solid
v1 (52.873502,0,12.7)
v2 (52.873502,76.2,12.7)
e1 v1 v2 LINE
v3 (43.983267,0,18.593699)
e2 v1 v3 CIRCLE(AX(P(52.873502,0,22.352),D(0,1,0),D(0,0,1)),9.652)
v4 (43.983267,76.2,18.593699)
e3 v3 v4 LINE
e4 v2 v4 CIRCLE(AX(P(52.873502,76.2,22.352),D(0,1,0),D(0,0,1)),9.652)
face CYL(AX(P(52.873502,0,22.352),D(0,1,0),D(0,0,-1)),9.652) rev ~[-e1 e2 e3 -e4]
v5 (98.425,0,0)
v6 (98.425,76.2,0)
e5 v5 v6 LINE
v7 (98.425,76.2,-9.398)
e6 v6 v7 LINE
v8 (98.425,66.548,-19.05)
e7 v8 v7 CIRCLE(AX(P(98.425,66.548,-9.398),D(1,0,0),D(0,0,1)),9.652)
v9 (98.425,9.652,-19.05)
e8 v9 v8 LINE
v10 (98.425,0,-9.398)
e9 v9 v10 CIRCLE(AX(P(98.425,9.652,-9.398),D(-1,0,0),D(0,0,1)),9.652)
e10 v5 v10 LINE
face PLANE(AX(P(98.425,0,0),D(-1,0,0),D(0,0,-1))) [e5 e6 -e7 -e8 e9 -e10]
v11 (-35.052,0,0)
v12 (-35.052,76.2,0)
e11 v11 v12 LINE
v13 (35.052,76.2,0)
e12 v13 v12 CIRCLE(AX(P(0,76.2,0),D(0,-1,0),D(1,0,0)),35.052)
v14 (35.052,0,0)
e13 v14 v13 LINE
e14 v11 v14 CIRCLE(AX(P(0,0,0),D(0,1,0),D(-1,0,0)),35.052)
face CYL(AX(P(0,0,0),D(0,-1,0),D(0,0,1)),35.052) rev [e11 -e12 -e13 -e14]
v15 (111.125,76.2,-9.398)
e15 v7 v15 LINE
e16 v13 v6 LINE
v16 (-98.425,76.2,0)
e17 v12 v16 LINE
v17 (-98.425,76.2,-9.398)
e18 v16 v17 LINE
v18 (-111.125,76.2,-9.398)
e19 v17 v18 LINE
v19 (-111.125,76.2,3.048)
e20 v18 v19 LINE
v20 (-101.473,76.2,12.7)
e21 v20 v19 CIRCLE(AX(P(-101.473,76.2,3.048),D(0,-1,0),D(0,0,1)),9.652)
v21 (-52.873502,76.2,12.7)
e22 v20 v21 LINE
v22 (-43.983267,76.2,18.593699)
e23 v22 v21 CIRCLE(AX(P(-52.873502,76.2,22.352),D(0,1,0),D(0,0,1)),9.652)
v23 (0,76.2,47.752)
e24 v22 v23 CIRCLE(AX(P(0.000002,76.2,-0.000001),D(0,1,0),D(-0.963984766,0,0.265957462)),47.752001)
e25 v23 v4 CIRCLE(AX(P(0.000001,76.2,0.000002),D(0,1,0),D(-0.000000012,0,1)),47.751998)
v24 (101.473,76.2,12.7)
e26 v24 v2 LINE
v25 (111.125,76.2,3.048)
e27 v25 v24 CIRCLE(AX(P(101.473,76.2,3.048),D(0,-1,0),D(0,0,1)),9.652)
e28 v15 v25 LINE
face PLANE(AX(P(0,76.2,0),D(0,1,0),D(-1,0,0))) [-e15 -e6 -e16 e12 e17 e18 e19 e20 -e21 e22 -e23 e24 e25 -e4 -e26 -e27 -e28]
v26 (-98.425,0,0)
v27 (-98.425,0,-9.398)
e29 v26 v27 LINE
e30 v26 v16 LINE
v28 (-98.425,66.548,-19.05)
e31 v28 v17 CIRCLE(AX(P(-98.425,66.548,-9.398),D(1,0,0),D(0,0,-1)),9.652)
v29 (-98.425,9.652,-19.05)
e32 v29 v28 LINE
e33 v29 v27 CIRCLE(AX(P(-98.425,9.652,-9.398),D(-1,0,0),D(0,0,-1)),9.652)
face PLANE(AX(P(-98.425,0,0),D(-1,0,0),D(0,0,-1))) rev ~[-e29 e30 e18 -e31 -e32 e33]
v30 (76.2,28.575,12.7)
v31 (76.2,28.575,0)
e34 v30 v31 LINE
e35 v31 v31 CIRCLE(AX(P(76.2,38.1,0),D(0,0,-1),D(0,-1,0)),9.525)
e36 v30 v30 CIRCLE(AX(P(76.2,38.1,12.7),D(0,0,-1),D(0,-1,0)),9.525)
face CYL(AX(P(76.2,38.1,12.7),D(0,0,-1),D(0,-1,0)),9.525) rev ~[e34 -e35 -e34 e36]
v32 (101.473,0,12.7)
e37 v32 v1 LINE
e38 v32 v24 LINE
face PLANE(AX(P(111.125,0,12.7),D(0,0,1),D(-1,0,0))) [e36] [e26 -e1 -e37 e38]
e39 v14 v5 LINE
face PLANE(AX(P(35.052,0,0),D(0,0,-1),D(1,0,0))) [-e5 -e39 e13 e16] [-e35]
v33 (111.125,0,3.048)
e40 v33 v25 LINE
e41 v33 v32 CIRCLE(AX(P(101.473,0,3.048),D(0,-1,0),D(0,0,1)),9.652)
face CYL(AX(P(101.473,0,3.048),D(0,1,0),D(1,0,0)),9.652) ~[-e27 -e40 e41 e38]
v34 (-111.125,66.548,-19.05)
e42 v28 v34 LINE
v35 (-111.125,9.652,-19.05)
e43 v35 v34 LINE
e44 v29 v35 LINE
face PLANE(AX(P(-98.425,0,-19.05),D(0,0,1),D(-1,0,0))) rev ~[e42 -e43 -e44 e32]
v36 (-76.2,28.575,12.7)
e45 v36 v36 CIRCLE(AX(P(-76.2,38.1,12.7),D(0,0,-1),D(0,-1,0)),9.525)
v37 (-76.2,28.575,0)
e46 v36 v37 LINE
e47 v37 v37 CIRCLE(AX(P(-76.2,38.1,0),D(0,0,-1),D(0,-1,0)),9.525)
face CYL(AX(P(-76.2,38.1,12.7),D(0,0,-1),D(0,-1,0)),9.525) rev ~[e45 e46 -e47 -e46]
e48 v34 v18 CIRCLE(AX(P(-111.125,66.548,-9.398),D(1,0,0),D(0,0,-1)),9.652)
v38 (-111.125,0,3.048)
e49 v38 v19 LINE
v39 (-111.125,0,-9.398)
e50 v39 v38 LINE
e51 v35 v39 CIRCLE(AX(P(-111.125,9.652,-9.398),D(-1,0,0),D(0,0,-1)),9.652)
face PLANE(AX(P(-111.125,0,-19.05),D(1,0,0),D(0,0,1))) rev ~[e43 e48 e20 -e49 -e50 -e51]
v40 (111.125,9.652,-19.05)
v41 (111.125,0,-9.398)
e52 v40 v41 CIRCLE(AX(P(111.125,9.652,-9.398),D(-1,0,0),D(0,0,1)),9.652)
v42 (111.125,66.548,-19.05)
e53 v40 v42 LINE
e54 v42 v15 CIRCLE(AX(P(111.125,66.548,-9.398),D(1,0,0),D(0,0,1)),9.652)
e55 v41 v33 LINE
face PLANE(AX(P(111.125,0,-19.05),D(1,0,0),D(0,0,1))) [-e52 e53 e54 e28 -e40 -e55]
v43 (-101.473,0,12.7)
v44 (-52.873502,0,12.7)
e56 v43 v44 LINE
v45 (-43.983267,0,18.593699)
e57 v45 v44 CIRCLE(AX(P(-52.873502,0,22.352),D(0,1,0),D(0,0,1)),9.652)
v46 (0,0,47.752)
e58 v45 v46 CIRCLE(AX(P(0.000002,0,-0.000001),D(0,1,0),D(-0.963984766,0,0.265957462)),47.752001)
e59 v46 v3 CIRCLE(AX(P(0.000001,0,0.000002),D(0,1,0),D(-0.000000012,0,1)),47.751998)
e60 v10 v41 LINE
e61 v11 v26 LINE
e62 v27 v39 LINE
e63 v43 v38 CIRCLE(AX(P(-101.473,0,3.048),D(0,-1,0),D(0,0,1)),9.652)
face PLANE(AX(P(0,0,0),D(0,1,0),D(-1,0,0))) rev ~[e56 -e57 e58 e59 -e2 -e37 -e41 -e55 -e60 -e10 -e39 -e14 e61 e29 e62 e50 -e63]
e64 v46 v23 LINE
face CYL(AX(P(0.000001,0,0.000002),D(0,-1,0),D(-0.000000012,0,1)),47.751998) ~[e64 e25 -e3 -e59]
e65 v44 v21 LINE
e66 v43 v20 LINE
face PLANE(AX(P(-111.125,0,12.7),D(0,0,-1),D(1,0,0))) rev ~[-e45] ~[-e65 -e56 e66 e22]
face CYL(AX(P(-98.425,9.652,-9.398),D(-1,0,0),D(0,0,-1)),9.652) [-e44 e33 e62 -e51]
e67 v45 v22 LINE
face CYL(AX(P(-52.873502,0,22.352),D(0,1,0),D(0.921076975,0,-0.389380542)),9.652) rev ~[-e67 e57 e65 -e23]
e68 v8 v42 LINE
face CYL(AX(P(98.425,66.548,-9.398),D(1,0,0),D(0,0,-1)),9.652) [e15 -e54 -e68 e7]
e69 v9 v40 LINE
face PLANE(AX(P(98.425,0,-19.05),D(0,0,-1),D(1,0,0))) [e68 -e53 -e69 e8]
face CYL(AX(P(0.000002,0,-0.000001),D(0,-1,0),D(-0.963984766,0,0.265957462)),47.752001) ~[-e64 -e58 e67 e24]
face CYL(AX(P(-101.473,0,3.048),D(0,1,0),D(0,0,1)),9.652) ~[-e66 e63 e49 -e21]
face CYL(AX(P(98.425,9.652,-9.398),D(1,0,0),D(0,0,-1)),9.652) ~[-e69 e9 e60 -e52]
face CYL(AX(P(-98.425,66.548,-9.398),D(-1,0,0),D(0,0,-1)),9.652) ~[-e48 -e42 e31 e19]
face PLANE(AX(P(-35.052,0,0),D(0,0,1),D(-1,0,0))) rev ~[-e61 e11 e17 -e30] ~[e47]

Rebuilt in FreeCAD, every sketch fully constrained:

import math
import FreeCAD as App
import Part
import Sketcher

V = App.Vector
Q = App.Units.Quantity


def edges_at(feature, points):
    """Names of the edges that pass closest to the given points."""
    edges = feature.Shape.Edges
    near = lambda p: min(range(len(edges)), key=lambda i: edges[i].distToShape(Part.Vertex(*p))[0])
    return sorted({f"Edge{near(p) + 1}" for p in points})

doc = App.newDocument("Part")
body = doc.addObject("PartDesign::Body", "Body")

# Sketch on XZ plane
sketch1 = body.newObject("Sketcher::SketchObject", "Sketch")
sketch1.AttachmentSupport = (doc.getObject("XZ_Plane"), [""])
sketch1.MapMode = "FlatFace"
sketch1.addGeometry(Part.LineSegment(V(-35.052, 0, 0), V(-98.425, 0, 0)), False)
sketch1.addGeometry(Part.LineSegment(V(-98.425, 0, 0), V(-98.425, -19.05, 0)), False)
sketch1.addGeometry(Part.LineSegment(V(-98.425, -19.05, 0), V(-111.125, -19.05, 0)), False)
sketch1.addGeometry(Part.LineSegment(V(-111.125, -19.05, 0), V(-111.125, 12.7, 0)), False)
sketch1.addGeometry(Part.LineSegment(V(-111.125, 12.7, 0), V(-46.0322, 12.7, 0)), False)
sketch1.addGeometry(Part.ArcOfCircle(Part.Circle(V(0, 0, 0), V(0, 0, 1), 47.752), math.radians(90), math.radians(164.576148)), False)
sketch1.addGeometry(Part.ArcOfCircle(Part.Circle(V(0, 0, 0), V(0, 0, 1), 47.751999), math.radians(15.423852), math.radians(90)), False)
sketch1.addGeometry(Part.LineSegment(V(46.0322, 12.7, 0), V(111.125, 12.7, 0)), False)
sketch1.addGeometry(Part.LineSegment(V(111.125, 12.7, 0), V(111.125, -19.05, 0)), False)
sketch1.addGeometry(Part.LineSegment(V(111.125, -19.05, 0), V(98.425, -19.05, 0)), False)
sketch1.addGeometry(Part.LineSegment(V(98.425, -19.05, 0), V(98.425, 0, 0)), False)
sketch1.addGeometry(Part.LineSegment(V(98.425, 0, 0), V(35.052, 0, 0)), False)
sketch1.addGeometry(Part.ArcOfCircle(Part.Circle(V(0, 0, 0), V(0, 0, 1), 35.052), math.radians(0), math.radians(180)), False)
sketch1.addConstraint(Sketcher.Constraint("Coincident", 0, 2, 1, 1))
sketch1.addConstraint(Sketcher.Constraint("Coincident", 1, 2, 2, 1))
sketch1.addConstraint(Sketcher.Constraint("Coincident", 2, 2, 3, 1))
sketch1.addConstraint(Sketcher.Constraint("Coincident", 3, 2, 4, 1))
sketch1.addConstraint(Sketcher.Constraint("Coincident", 4, 2, 5, 2))
sketch1.addConstraint(Sketcher.Constraint("Tangent", 5, 1, 6, 2))
sketch1.addConstraint(Sketcher.Constraint("Coincident", 6, 1, 7, 1))
sketch1.addConstraint(Sketcher.Constraint("Coincident", 7, 2, 8, 1))
sketch1.addConstraint(Sketcher.Constraint("Coincident", 8, 2, 9, 1))
sketch1.addConstraint(Sketcher.Constraint("Coincident", 9, 2, 10, 1))
sketch1.addConstraint(Sketcher.Constraint("Coincident", 10, 2, 11, 1))
sketch1.addConstraint(Sketcher.Constraint("Coincident", 11, 2, 12, 1))
sketch1.addConstraint(Sketcher.Constraint("Coincident", 12, 2, 0, 1))
sketch1.addConstraint(Sketcher.Constraint("Horizontal", 0))
sketch1.addConstraint(Sketcher.Constraint("Vertical", 1))
sketch1.addConstraint(Sketcher.Constraint("Horizontal", 2))
sketch1.addConstraint(Sketcher.Constraint("Vertical", 3))
sketch1.addConstraint(Sketcher.Constraint("Horizontal", 4))
sketch1.addConstraint(Sketcher.Constraint("Horizontal", 7))
sketch1.addConstraint(Sketcher.Constraint("Vertical", 8))
sketch1.addConstraint(Sketcher.Constraint("Horizontal", 9))
sketch1.addConstraint(Sketcher.Constraint("Vertical", 10))
sketch1.addConstraint(Sketcher.Constraint("Horizontal", 11))
sketch1.addConstraint(Sketcher.Constraint("Coincident", 5, 3, -1, 1))
sketch1.addConstraint(Sketcher.Constraint("Coincident", 12, 3, -1, 1))
sketch1.addConstraint(Sketcher.Constraint("Equal", 5, 6))
sketch1.addConstraint(Sketcher.Constraint("Symmetric", 0, 2, 10, 2, -1, 1))
sketch1.addConstraint(Sketcher.Constraint("Symmetric", 3, 2, 7, 2, -2))
sketch1.addConstraint(Sketcher.Constraint("PointOnObject", 0, 2, -1))
sketch1.addConstraint(Sketcher.Constraint("PointOnObject", 5, 1, -2))
sketch1.addConstraint(Sketcher.Constraint("Horizontal", 2, 2, 8, 2))
sketch1.addConstraint(Sketcher.Constraint("Radius", 12, Q("1.38 in")))
sketch1.addConstraint(Sketcher.Constraint("DistanceX", 2, 2, 2, 1, Q("0.5 in")))
sketch1.addConstraint(Sketcher.Constraint("DistanceY", 3, 1, 3, 2, Q("1.25 in")))
sketch1.addConstraint(Sketcher.Constraint("DistanceY", -1, 1, 3, 2, Q("0.5 in")))
sketch1.addConstraint(Sketcher.Constraint("Radius", 5, Q("1.88 in")))
sketch1.addConstraint(Sketcher.Constraint("DistanceX", 0, 2, -1, 1, Q("3.875 in")))
pad1 = body.newObject("PartDesign::Pad", "Pad")
pad1.Profile = sketch1
pad1.Length = Q("3 in")
pad1.Reversed = True
doc.recompute()

fillet = body.newObject("PartDesign::Fillet", "Fillet")
fillet.Base = (pad1, edges_at(pad1, [
    (111.125, 38.1, 12.7),
    (46.032, 38.1, 12.7),
    (104.775, 76.2, -19.05),
    (104.775, 0, -19.05),
    (-46.032, 38.1, 12.7),
    (-111.125, 38.1, 12.7),
    (-104.775, 0, -19.05),
    (-104.775, 76.2, -19.05),
]))
fillet.Radius = Q("0.38 in")

# Sketch on XY plane
sketch2 = body.newObject("Sketcher::SketchObject", "Sketch001")
sketch2.AttachmentSupport = (doc.getObject("XY_Plane"), [""])
sketch2.MapMode = "FlatFace"
sketch2.AttachmentOffset = App.Placement(V(0, 0, 0.5 * 25.4), App.Rotation())
sketch2.addGeometry(Part.Circle(V(-76.2, 38.1, 0), V(0, 0, 1), 9.525), False)
sketch2.addGeometry(Part.Circle(V(76.2, 38.1, 0), V(0, 0, 1), 9.525), False)
sketch2.addConstraint(Sketcher.Constraint("Equal", 0, 1))
sketch2.addConstraint(Sketcher.Constraint("Symmetric", 0, 3, 1, 3, -2))
sketch2.addConstraint(Sketcher.Constraint("Diameter", 0, Q("0.75 in")))
sketch2.addConstraint(Sketcher.Constraint("DistanceX", 0, 3, -1, 1, Q("3 in")))
sketch2.addConstraint(Sketcher.Constraint("DistanceY", -1, 1, 0, 3, Q("1.5 in")))
doc.recompute()
hole = body.newObject("PartDesign::Hole", "Hole")
hole.Profile = sketch2
hole.ThreadType = "None"
hole.Diameter = Q("0.75 in")
hole.DepthType = "ThroughAll"

doc.recompute()
